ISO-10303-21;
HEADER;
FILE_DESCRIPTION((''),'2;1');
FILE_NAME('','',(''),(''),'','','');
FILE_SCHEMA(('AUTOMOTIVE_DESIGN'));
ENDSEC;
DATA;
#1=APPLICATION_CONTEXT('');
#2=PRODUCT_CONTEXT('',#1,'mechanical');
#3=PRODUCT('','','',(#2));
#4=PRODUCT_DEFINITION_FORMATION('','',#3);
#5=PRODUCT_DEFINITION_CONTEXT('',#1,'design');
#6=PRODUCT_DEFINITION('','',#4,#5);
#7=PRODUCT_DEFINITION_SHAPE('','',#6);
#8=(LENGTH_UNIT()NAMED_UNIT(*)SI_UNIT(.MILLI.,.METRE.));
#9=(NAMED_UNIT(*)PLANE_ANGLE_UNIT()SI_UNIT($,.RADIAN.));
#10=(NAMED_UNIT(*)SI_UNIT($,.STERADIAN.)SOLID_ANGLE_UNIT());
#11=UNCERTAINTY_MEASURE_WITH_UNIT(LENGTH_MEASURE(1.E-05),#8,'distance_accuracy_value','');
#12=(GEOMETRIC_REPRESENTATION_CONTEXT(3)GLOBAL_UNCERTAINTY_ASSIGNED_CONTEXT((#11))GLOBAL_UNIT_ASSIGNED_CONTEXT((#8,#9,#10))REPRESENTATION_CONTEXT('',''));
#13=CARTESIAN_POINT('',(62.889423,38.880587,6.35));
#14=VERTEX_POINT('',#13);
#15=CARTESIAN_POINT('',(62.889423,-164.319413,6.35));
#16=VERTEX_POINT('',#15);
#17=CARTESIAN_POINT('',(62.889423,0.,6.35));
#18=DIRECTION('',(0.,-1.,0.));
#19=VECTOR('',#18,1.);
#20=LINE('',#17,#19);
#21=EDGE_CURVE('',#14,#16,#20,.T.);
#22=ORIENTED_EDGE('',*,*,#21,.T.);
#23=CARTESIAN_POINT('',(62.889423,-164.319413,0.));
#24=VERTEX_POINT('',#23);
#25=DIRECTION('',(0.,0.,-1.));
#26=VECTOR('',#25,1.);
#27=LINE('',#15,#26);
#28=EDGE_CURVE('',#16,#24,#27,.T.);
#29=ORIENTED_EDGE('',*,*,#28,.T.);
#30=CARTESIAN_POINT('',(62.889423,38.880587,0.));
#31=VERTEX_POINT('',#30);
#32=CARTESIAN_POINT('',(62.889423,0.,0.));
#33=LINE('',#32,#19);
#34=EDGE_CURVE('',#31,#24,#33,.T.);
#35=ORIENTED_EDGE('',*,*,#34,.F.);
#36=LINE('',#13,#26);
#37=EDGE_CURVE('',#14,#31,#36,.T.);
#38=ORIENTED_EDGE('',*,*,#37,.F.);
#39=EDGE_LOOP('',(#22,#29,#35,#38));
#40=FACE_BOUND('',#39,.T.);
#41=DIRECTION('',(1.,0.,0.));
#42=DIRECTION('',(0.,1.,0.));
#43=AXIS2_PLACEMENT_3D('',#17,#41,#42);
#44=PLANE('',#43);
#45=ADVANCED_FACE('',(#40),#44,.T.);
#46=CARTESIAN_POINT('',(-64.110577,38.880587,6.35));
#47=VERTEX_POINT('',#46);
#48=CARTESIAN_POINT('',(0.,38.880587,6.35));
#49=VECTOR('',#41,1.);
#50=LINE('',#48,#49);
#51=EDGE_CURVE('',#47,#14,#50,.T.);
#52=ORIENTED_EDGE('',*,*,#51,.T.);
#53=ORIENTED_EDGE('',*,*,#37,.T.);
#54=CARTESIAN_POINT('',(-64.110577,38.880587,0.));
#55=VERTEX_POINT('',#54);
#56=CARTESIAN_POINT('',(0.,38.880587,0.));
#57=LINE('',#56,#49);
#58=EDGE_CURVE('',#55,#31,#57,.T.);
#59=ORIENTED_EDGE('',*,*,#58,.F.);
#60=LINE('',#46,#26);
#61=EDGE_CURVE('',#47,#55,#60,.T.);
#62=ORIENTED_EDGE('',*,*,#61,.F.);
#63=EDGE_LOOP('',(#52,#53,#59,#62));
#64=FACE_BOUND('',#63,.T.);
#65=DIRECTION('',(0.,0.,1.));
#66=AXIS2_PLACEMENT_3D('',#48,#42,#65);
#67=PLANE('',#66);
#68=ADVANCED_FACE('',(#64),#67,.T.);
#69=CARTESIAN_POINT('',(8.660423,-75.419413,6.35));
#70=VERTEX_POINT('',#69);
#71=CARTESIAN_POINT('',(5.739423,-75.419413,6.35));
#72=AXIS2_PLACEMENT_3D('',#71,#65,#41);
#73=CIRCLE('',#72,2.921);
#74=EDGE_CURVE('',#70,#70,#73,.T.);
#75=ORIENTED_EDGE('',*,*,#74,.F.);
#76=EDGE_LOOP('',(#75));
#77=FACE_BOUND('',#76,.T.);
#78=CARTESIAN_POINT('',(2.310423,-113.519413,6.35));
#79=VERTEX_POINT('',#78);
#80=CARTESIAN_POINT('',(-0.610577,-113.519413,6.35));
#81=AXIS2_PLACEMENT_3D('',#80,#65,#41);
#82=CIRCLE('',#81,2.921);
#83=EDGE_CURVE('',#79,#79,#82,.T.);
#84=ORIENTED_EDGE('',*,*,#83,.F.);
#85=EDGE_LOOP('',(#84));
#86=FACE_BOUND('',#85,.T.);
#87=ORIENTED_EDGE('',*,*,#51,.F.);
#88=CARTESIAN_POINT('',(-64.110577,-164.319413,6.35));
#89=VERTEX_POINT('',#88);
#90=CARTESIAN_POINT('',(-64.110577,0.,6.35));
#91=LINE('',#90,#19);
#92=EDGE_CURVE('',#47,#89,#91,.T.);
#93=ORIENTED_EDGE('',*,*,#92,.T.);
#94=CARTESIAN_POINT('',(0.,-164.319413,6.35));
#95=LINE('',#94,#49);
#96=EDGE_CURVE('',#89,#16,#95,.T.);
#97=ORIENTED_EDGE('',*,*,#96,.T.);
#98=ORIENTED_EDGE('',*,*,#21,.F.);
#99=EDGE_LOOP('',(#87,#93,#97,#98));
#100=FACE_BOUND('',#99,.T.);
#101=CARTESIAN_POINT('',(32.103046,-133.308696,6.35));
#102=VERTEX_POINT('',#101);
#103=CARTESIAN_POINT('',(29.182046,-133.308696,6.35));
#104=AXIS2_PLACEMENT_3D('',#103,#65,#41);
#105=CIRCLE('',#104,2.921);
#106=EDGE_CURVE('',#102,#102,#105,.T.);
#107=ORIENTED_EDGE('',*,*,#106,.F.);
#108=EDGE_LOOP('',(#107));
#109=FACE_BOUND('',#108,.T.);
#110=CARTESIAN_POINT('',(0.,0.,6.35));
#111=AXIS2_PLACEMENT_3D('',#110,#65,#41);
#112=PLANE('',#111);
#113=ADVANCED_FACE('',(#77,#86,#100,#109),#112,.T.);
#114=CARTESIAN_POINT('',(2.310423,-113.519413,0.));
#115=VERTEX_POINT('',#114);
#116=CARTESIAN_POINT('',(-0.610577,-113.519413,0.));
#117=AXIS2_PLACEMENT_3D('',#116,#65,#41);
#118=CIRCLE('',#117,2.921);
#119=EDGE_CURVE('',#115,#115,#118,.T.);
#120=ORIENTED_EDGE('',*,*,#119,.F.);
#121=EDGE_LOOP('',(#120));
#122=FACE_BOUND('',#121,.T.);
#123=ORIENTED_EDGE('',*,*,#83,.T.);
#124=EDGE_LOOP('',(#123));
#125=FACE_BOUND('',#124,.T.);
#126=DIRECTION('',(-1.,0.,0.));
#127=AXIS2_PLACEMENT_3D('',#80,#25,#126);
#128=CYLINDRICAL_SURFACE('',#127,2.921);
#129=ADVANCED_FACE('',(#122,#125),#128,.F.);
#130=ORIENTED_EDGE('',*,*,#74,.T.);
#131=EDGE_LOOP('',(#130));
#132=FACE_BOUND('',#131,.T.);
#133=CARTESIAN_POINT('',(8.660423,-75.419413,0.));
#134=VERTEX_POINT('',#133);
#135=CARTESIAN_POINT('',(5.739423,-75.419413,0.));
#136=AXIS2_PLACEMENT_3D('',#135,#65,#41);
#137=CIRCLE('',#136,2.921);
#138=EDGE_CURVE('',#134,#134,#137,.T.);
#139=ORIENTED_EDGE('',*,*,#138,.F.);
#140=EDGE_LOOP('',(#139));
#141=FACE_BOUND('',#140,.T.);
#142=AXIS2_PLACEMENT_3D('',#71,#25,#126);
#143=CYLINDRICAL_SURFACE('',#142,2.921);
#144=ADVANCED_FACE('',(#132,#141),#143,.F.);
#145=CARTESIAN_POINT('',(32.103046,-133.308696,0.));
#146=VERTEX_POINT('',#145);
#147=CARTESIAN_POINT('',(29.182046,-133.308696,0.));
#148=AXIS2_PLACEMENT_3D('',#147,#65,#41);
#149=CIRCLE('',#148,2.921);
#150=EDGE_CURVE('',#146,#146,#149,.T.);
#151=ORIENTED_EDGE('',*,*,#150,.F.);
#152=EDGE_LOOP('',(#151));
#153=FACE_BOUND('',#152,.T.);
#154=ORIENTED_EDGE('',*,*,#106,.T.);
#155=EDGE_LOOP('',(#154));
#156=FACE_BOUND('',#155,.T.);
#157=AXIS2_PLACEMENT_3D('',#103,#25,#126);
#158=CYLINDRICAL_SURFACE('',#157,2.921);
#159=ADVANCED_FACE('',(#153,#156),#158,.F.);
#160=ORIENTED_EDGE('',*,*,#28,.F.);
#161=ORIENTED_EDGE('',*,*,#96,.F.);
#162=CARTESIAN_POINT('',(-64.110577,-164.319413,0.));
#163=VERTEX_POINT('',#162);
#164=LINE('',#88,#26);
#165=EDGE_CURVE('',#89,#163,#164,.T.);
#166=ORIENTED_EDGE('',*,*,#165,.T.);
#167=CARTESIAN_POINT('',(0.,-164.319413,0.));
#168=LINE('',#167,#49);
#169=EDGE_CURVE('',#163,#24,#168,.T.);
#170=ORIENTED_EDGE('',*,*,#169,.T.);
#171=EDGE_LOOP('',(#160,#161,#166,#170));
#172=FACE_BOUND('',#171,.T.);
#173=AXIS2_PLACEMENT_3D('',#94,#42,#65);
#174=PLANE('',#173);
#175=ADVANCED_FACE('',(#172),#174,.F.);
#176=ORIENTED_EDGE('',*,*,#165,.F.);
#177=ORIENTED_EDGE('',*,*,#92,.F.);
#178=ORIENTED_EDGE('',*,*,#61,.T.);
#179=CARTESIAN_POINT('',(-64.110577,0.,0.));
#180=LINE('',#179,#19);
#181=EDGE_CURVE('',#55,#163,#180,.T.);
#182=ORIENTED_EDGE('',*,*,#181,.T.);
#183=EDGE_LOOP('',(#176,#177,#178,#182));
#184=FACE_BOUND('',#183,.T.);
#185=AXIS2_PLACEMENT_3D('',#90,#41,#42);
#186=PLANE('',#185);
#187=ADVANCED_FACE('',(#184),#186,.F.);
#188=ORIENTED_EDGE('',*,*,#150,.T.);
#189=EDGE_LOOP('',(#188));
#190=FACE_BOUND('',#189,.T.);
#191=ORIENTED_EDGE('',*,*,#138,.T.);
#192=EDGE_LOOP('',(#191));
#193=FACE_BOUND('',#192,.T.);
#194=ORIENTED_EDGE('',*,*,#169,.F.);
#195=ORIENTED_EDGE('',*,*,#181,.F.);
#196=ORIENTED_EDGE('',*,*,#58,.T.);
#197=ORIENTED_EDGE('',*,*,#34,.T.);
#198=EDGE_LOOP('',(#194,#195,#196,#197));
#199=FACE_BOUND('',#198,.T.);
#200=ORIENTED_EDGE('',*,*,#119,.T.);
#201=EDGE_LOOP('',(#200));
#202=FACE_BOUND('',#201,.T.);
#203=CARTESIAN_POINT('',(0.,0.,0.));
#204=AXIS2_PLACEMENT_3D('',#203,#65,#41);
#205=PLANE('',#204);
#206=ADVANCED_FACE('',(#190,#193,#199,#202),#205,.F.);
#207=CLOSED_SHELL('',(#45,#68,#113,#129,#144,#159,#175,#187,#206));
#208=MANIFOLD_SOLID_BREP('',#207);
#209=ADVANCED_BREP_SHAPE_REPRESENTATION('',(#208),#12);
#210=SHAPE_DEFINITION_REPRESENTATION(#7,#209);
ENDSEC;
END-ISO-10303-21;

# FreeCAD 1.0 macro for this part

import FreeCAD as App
import Part
import Sketcher
Q = App.Units.Quantity

doc = App.newDocument("Part")
body = doc.addObject("PartDesign::Body", "Body")

# Sketch on XY plane
sketch1 = body.newObject("Sketcher::SketchObject", "Sketch")
sketch1.AttachmentSupport = (doc.getObject("XY_Plane"), [""])
sketch1.MapMode = "FlatFace"
sketch1.addGeometry(Part.LineSegment(App.Vector(-64.110577, 38.880587, 0), App.Vector(-64.110577, -164.319413, 0)), False)
sketch1.addGeometry(Part.LineSegment(App.Vector(-64.110577, -164.319413, 0), App.Vector(62.889423, -164.319413, 0)), False)
sketch1.addGeometry(Part.LineSegment(App.Vector(62.889423, -164.319413, 0), App.Vector(62.889423, 38.880587, 0)), False)
sketch1.addGeometry(Part.LineSegment(App.Vector(62.889423, 38.880587, 0), App.Vector(-64.110577, 38.880587, 0)), False)
sketch1.addGeometry(Part.Circle(App.Vector(-0.610577, -113.519413, 0), App.Vector(0, 0, 1), 2.921), False)
sketch1.addGeometry(Part.Circle(App.Vector(29.182046, -133.308696, 0), App.Vector(0, 0, 1), 2.921), False)
sketch1.addGeometry(Part.Circle(App.Vector(5.739423, -75.419413, 0), App.Vector(0, 0, 1), 2.921), False)
sketch1.addConstraint(Sketcher.Constraint("Coincident", 0, 2, 1, 1))
sketch1.addConstraint(Sketcher.Constraint("Coincident", 1, 2, 2, 1))
sketch1.addConstraint(Sketcher.Constraint("Coincident", 2, 2, 3, 1))
sketch1.addConstraint(Sketcher.Constraint("Coincident", 3, 2, 0, 1))
sketch1.addConstraint(Sketcher.Constraint("Vertical", 0))
sketch1.addConstraint(Sketcher.Constraint("Horizontal", 1))
sketch1.addConstraint(Sketcher.Constraint("Vertical", 2))
sketch1.addConstraint(Sketcher.Constraint("Horizontal", 3))
sketch1.addConstraint(Sketcher.Constraint("Equal", 4, 5))
sketch1.addConstraint(Sketcher.Constraint("Equal", 5, 6))
sketch1.addConstraint(Sketcher.Constraint("Diameter", 4, Q("0.23 in")))
sketch1.addConstraint(Sketcher.Constraint("DistanceX", 1, 1, 1, 2, Q("5 in")))
sketch1.addConstraint(Sketcher.Constraint("DistanceY", 0, 2, 0, 1, Q("8 in")))
sketch1.addConstraint(Sketcher.Constraint("DistanceY", 0, 2, 4, 3, Q("2 in")))
sketch1.addConstraint(Sketcher.Constraint("DistanceY", 4, 3, 6, 3, Q("1.5 in")))
sketch1.addConstraint(Sketcher.Constraint("DistanceX", 0, 2, 4, 3, Q("2.5 in")))
sketch1.addConstraint(Sketcher.Constraint("DistanceX", 4, 3, 6, 3, Q("0.25 in")))
sketch1.addConstraint(Sketcher.Constraint("DistanceX", 4, 3, -1, 1, 0.610577))
sketch1.addConstraint(Sketcher.Constraint("DistanceY", 4, 3, -1, 1, 113.519413))
sketch1.addConstraint(Sketcher.Constraint("DistanceX", -1, 1, 5, 3, 29.182046))
sketch1.addConstraint(Sketcher.Constraint("DistanceY", 5, 3, -1, 1, 133.308696))
pad1 = body.newObject("PartDesign::Pad", "Pad")
pad1.Profile = sketch1
pad1.Length = Q("0.25 in")

doc.recompute()
